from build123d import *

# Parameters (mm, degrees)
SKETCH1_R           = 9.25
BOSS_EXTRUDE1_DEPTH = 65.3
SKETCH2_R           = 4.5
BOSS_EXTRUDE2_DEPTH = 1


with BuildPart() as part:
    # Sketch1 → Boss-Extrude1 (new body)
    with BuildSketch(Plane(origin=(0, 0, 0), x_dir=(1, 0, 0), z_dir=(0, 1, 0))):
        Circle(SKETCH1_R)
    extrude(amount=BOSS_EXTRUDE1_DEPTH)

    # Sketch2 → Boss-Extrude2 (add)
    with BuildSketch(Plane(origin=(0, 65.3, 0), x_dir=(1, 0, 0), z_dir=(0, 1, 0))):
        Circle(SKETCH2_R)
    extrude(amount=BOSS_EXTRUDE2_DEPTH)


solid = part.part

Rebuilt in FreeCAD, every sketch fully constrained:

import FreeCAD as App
import Part
import Sketcher

doc = App.newDocument("Part")
body = doc.addObject("PartDesign::Body", "Body")

# Sketch on XZ plane
sketch1 = body.newObject("Sketcher::SketchObject", "Sketch")
sketch1.AttachmentSupport = (doc.getObject("XZ_Plane"), [""])
sketch1.MapMode = "FlatFace"
sketch1.addGeometry(Part.Circle(App.Vector(0, 0, 0), App.Vector(0, 0, 1), 9.25), False)
sketch1.addConstraint(Sketcher.Constraint("Coincident", 0, 3, -1, 1))
sketch1.addConstraint(Sketcher.Constraint("Diameter", 0, 18.5))
pad1 = body.newObject("PartDesign::Pad", "Pad")
pad1.Profile = sketch1
pad1.Length = 65.3
pad1.Reversed = True

# Sketch on XZ plane
sketch2 = body.newObject("Sketcher::SketchObject", "Sketch001")
sketch2.AttachmentSupport = (doc.getObject("XZ_Plane"), [""])
sketch2.MapMode = "FlatFace"
sketch2.AttachmentOffset = App.Placement(App.Vector(0, 0, -65.3), App.Rotation())
sketch2.addGeometry(Part.Circle(App.Vector(0, 0, 0), App.Vector(0, 0, 1), 4.5), False)
sketch2.addConstraint(Sketcher.Constraint("Coincident", 0, 3, -1, 1))
sketch2.addConstraint(Sketcher.Constraint("Diameter", 0, 9.0))
pad2 = body.newObject("PartDesign::Pad", "Pad001")
pad2.Profile = sketch2
pad2.Length = 1
pad2.Reversed = True

doc.recompute()
